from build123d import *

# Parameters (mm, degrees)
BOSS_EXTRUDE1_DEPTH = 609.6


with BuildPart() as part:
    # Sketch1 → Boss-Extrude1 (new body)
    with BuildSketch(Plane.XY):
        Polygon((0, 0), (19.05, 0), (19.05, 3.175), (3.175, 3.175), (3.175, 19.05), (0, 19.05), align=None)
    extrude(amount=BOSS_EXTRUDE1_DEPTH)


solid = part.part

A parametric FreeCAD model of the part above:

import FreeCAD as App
import Part
import Sketcher
from FreeCAD import Vector
Q = App.Units.Quantity


def add_polygon(sketch, points):
    """Adds a closed chain of lines whose ends are joined by coincident constraints."""
    first, n = sketch.GeometryCount, len(points)
    for a, b in zip(points, points[1:] + points[:1]):
        sketch.addGeometry(Part.LineSegment(App.Vector(*a, 0), App.Vector(*b, 0)), False)
    for i in range(n):
        sketch.addConstraint(Sketcher.Constraint("Coincident", first + i, 2, first + (i + 1) % n, 1))

doc = App.newDocument("Part")
params = doc.addObject("Spreadsheet::Sheet", "Params")
for row, (alias, value) in enumerate([
    ("sketch1_width", "0.75 in"),
    ("sketch1_width2", "0.625 in"),
    ("pad1_length", "24 in"),
], start=1):
    params.set(f"A{row}", alias)
    params.set(f"B{row}", "=" + value)
    params.setAlias(f"B{row}", alias)

body = doc.addObject("PartDesign::Body", "Body")

sketch1 = body.newObject("Sketcher::SketchObject", "Sketch")
sketch1.AttachmentSupport = (doc.getObject("XY_Plane"), [""])
sketch1.MapMode = "FlatFace"
add_polygon(sketch1, [(0, 0), (19.1, 0), (19.1, 3.2), (3.2, 3.2), (3.2, 19.1), (0, 19.1)])
sketch1.addConstraint([
    Sketcher.Constraint("Horizontal", 0),
    Sketcher.Constraint("Vertical", 1),
    Sketcher.Constraint("Horizontal", 2),
    Sketcher.Constraint("Vertical", 3),
    Sketcher.Constraint("Horizontal", 4),
    Sketcher.Constraint("Vertical", 5),
    Sketcher.Constraint("Coincident", 5, 2, -1, 1),
    Sketcher.Constraint("Equal", 4, 1),
    Sketcher.Constraint("Equal", 2, 3),
    Sketcher.Constraint("DistanceX", 0, 1, 0, 2, Q("0.75 in")),
    Sketcher.Constraint("DistanceX", 2, 2, 2, 1, Q("0.625 in")),
])
sketch1.setExpression("Constraints[15]", "Params.sketch1_width")
sketch1.setExpression("Constraints[16]", "Params.sketch1_width2")
pad1 = body.newObject("PartDesign::Pad", "Pad")
pad1.Profile = sketch1
pad1.setExpression("Length", "Params.pad1_length")

doc.recompute()
